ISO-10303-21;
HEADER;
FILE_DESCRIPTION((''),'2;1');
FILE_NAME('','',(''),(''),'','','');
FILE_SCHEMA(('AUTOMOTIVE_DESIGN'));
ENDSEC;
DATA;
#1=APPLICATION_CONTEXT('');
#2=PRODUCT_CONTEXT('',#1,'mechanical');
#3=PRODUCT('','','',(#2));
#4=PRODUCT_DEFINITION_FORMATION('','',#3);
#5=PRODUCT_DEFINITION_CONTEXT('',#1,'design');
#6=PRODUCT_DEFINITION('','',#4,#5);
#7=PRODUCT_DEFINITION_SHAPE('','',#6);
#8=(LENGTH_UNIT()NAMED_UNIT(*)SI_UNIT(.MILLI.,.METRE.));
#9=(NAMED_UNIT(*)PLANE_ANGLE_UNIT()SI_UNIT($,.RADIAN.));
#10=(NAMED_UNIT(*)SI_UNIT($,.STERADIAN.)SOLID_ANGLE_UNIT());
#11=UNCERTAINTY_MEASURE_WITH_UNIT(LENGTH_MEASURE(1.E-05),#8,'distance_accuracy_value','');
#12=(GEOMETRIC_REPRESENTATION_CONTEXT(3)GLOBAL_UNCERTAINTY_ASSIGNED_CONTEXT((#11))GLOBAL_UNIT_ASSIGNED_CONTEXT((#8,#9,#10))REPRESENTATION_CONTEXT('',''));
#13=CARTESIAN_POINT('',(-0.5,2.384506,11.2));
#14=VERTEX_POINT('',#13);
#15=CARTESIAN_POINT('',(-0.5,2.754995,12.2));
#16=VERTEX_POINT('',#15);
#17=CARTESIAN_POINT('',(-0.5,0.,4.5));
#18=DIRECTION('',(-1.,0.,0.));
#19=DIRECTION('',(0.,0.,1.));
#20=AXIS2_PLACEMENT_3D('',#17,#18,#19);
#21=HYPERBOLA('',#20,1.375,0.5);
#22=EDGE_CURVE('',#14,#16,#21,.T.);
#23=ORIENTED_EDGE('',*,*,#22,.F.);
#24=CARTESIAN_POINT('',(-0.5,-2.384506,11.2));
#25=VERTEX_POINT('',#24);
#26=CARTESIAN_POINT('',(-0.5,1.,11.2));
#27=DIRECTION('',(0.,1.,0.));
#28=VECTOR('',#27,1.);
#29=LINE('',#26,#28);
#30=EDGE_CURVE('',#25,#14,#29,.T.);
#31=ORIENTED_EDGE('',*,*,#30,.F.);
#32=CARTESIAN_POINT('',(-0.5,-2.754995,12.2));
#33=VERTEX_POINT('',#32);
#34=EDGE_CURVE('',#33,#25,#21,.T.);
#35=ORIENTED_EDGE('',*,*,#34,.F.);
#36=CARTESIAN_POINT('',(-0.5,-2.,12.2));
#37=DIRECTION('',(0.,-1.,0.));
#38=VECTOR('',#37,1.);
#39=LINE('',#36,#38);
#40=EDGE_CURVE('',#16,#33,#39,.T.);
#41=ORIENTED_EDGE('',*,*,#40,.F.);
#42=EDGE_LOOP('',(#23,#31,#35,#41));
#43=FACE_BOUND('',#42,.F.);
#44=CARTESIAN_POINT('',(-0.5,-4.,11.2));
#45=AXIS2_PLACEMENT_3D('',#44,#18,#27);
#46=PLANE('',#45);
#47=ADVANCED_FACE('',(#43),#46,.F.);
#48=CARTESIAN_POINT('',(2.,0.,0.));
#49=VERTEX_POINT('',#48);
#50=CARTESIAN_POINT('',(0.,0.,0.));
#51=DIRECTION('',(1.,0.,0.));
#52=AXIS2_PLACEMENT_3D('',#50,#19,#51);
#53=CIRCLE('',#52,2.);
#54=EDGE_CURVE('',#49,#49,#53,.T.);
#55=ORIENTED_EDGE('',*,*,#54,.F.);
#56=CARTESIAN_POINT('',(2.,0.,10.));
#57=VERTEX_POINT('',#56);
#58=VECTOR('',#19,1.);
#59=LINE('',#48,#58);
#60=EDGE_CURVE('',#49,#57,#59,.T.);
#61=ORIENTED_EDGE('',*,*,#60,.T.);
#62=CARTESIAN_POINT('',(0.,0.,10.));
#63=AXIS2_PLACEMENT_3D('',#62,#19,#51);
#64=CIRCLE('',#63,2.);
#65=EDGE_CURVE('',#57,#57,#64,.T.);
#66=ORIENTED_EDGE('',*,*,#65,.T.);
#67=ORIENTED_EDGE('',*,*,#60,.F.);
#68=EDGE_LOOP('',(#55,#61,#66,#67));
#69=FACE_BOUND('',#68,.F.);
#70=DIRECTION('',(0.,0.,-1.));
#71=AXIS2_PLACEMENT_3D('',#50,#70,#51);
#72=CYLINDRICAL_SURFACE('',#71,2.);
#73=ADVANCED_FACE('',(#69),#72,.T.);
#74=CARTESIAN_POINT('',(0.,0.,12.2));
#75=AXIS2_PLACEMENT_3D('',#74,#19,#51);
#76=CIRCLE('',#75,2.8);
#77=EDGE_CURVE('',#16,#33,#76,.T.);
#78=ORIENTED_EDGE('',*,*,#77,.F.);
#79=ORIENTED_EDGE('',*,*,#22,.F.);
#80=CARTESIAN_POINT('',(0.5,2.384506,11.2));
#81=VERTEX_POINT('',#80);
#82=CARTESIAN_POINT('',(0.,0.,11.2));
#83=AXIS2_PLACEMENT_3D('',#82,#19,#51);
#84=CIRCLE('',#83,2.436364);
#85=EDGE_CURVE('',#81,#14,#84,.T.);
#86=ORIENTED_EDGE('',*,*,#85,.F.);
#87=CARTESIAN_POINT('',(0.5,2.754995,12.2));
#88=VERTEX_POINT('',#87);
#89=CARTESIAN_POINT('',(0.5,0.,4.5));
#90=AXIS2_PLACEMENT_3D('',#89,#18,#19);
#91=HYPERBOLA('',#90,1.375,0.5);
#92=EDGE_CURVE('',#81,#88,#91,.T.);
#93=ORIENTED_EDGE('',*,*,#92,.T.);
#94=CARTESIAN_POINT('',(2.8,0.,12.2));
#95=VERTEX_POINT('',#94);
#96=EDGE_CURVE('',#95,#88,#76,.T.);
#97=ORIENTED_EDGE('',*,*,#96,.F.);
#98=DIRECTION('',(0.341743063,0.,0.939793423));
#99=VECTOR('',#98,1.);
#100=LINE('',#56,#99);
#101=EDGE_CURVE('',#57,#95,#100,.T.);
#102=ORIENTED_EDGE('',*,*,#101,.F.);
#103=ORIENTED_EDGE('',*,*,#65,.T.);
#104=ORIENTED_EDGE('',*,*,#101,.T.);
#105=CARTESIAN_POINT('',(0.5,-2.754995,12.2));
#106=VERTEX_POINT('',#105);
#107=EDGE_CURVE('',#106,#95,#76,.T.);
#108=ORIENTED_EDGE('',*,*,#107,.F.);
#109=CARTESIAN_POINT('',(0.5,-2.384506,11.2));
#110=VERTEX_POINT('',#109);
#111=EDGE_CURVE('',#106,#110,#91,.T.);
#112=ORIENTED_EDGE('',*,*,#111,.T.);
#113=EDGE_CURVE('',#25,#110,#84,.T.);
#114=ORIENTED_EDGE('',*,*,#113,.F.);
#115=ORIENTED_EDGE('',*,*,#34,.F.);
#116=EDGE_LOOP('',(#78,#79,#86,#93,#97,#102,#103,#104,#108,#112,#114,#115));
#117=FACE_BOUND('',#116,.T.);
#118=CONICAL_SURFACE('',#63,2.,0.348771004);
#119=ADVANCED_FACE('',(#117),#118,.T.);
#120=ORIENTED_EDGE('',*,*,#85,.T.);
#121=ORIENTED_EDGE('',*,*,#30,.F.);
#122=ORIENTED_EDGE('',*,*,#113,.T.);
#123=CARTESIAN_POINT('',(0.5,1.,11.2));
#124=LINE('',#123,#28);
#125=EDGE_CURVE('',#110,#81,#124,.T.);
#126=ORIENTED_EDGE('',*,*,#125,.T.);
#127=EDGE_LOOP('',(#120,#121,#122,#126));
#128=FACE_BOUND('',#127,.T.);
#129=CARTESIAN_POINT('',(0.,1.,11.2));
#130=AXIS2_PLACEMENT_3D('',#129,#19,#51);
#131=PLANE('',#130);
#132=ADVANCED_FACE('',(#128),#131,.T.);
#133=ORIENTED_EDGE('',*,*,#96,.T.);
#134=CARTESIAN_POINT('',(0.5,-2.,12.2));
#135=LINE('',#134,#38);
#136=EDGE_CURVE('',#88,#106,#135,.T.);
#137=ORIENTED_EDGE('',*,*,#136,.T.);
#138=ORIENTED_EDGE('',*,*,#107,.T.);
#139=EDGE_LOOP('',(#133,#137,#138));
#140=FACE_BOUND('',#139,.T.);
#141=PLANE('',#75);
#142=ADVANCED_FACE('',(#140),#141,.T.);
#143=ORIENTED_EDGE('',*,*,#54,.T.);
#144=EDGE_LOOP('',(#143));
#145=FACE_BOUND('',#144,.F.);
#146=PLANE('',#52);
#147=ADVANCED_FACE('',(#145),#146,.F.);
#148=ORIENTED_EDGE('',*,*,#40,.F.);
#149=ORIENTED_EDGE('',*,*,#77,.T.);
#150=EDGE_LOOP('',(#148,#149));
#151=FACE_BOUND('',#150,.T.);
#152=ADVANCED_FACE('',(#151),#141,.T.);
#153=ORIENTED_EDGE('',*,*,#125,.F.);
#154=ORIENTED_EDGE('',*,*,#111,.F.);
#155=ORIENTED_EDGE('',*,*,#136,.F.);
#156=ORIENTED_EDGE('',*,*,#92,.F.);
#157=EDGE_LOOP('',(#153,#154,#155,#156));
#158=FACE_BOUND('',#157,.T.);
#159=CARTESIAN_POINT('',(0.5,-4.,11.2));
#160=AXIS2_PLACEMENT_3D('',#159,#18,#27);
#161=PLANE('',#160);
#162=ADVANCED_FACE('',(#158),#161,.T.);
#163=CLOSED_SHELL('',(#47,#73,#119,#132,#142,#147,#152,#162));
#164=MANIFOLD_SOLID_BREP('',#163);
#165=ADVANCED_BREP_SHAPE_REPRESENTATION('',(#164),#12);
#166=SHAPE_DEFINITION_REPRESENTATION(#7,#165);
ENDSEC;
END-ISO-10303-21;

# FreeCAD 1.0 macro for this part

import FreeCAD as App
import Part
import Sketcher

V = App.Vector
Q = App.Units.Quantity


def add_polygon(sketch, points):
    """Adds a closed chain of lines whose ends are joined by coincident constraints."""
    first, n = sketch.GeometryCount, len(points)
    for a, b in zip(points, points[1:] + points[:1]):
        sketch.addGeometry(Part.LineSegment(App.Vector(*a, 0), App.Vector(*b, 0)), False)
    for i in range(n):
        sketch.addConstraint(Sketcher.Constraint("Coincident", first + i, 2, first + (i + 1) % n, 1))

doc = App.newDocument("Part")
body = doc.addObject("PartDesign::Body", "Body")

# Sketch on XY plane
sketch1 = doc.addObject("Sketcher::SketchObject", "Sketch")
body.addObject(sketch1)
sketch1.AttachmentSupport = (doc.XY_Plane, [""])
sketch1.MapMode = "FlatFace"
sketch1.addGeometry(Part.Circle(V(0, 0, 0), V(0, 0, 1), 2), False)
sketch1.addConstraint([
    Sketcher.Constraint("Coincident", 0, 3, -1, 1),
    Sketcher.Constraint("Diameter", 0, Q("4 mm")),
])
pad1 = doc.addObject("PartDesign::Pad", "Pad")
body.addObject(pad1)
pad1.Profile = sketch1
pad1.Length = 10
body2 = doc.addObject("PartDesign::Body", "Body001")

# Sketch on XY plane
sketch2 = doc.addObject("Sketcher::SketchObject", "Sketch001")
body2.addObject(sketch2)
sketch2.AttachmentSupport = (doc.getObject("XY_Plane001"), [""])
sketch2.MapMode = "FlatFace"
sketch2.AttachmentOffset = App.Placement(V(0, 0, 1.2), App.Rotation())
add_polygon(sketch2, [(-0.5, 6), (-0.5, -4), (0.5, -4), (0.5, 6)])  # lines 0-3
sketch2.addConstraint([
    Sketcher.Constraint("Vertical", 0),
    Sketcher.Constraint("Horizontal", 1),
    Sketcher.Constraint("Vertical", 2),
    Sketcher.Constraint("Horizontal", 3),
    Sketcher.Constraint("DistanceX", 1, 1, 1, 2, Q("1 mm")),
    Sketcher.Constraint("DistanceY", 0, 2, 0, 1, Q("10 mm")),
    Sketcher.Constraint("DistanceY", 0, 2, -1, 1, Q("4 mm")),
    Sketcher.Constraint("DistanceX", 0, 2, -1, 1, Q("0.5 mm")),
])
pad2 = doc.addObject("PartDesign::Pad", "Pad001")
body2.addObject(pad2)
pad2.Profile = sketch2
pad2.Length = 10
body3 = doc.addObject("PartDesign::Body", "Body002")

# Sketch on XZ plane
sketch3 = doc.addObject("Sketcher::SketchObject", "Sketch002")
body3.addObject(sketch3)
sketch3.AttachmentSupport = (doc.getObject("XZ_Plane002"), [""])
sketch3.MapMode = "FlatFace"
add_polygon(sketch3, [(0, 0), (2, 0), (2.8, 2.2), (0, 2.2)])  # lines 0-3
sketch3.addConstraint([
    Sketcher.Constraint("Horizontal", 0),
    Sketcher.Constraint("Horizontal", 2),
    Sketcher.Constraint("Vertical", 3),
    Sketcher.Constraint("Coincident", 3, 2, -1, 1),
    Sketcher.Constraint("DistanceX", 0, 1, 0, 2, Q("2 mm")),
    Sketcher.Constraint("DistanceX", 2, 2, 2, 1, Q("2.8 mm")),
    Sketcher.Constraint("DistanceY", 3, 2, 3, 1, Q("2.2 mm")),
])
revolution = doc.addObject("PartDesign::Revolution", "Revolution")
body3.addObject(revolution)
revolution.Profile = sketch3
revolution.ReferenceAxis = (sketch3, ["V_Axis"])
revolution.Angle = 360
doc.recompute()

boolean = doc.addObject("PartDesign::Boolean", "Boolean")
body3.addObject(boolean)
boolean.Type = "Cut"
boolean.addObjects([body2])
body4 = doc.addObject("PartDesign::Body", "Body003")
doc.recompute()

body3.Placement = App.Placement(V(0, 0, 10), App.Rotation(V(0, 0, 1), 0))
boolean2 = doc.addObject("PartDesign::Boolean", "Boolean001")
body4.addObject(boolean2)
boolean2.Type = "Fuse"
boolean2.addObjects([body3])
doc.recompute()

boolean3 = doc.addObject("PartDesign::Boolean", "Boolean002")
body4.addObject(boolean3)
boolean3.Type = "Fuse"
boolean3.addObjects([body])

doc.recompute()
